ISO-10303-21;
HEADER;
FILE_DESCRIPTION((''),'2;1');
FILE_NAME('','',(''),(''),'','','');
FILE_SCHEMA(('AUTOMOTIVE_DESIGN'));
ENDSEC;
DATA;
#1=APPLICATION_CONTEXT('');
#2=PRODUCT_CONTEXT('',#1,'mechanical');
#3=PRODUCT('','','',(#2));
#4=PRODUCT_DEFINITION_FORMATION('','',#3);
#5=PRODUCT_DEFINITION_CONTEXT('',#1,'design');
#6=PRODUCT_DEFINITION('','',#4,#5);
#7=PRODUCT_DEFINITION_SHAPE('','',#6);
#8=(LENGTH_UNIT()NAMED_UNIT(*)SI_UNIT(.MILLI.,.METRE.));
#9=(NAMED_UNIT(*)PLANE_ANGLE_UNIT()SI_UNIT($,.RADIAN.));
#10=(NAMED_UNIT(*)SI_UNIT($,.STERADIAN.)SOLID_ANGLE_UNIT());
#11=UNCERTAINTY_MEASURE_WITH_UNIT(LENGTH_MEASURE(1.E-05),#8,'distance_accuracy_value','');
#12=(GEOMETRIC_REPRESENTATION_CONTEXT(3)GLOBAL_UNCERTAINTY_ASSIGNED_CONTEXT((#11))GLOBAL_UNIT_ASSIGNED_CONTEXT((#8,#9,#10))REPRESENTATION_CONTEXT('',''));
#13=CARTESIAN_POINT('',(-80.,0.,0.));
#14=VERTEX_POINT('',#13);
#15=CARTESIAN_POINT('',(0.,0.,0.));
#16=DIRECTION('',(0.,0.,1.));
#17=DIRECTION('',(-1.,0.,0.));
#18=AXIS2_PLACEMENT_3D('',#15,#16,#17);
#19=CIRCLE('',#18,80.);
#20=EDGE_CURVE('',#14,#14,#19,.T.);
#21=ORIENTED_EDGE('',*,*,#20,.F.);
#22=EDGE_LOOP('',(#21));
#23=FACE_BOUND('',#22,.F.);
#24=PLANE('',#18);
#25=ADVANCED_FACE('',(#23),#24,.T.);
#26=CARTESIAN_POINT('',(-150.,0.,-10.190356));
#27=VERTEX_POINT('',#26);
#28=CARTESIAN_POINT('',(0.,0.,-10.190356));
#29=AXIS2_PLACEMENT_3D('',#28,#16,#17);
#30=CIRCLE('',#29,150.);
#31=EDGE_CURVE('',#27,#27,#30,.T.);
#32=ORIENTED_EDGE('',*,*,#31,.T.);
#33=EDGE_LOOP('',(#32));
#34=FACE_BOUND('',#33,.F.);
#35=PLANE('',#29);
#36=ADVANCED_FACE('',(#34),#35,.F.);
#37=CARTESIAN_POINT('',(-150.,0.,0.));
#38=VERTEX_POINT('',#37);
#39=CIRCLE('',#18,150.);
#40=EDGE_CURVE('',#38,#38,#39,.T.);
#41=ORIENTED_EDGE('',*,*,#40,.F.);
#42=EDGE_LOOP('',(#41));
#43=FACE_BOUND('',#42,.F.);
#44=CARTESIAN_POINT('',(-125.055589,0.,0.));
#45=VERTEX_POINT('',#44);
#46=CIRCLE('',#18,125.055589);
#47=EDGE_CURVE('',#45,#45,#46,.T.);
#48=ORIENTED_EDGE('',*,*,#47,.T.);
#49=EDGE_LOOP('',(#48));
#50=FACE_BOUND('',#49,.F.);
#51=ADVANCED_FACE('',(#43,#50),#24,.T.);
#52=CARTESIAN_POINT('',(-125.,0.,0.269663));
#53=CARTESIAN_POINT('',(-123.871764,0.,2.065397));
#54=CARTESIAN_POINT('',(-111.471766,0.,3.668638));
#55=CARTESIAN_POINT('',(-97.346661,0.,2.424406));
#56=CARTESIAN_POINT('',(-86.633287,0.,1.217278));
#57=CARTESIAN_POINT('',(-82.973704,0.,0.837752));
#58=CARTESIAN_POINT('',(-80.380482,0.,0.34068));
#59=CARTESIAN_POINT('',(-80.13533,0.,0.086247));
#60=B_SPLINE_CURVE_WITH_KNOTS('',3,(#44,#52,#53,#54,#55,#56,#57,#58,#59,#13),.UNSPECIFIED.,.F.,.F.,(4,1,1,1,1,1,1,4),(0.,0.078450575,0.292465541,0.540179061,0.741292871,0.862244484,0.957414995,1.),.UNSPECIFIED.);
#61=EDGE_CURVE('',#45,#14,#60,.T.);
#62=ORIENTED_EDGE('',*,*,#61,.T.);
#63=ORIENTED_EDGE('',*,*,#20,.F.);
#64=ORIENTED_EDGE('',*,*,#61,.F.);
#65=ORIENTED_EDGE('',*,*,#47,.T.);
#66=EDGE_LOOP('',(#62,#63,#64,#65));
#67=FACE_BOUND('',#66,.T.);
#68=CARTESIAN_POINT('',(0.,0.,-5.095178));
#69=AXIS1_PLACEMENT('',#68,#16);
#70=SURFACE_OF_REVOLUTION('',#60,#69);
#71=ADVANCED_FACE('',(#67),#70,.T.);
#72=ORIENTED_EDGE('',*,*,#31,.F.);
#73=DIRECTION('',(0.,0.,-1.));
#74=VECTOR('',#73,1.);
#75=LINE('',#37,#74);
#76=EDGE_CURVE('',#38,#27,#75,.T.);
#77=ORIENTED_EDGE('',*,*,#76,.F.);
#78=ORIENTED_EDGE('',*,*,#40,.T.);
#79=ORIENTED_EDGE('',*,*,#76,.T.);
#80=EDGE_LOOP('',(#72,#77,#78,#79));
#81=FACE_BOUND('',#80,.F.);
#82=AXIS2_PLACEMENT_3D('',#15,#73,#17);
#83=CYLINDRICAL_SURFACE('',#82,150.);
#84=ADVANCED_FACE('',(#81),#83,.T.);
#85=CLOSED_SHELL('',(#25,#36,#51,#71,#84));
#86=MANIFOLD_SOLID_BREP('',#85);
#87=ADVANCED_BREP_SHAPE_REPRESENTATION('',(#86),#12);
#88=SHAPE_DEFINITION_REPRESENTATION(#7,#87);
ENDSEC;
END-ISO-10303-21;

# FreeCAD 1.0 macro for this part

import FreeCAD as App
import Part
import Sketcher

V = App.Vector
Q = App.Units.Quantity

doc = App.newDocument("Part")
params = doc.addObject("Spreadsheet::Sheet", "Params")
for row, (alias, value) in enumerate([
    ("sketch1_width", "150 mm"),
    ("revolution_angle", "360 deg"),
], start=1):
    params.set(f"A{row}", alias)
    params.set(f"B{row}", "=" + value)
    params.setAlias(f"B{row}", alias)

body = doc.addObject("PartDesign::Body", "Body")

# Sketch on XZ plane
sketch1 = doc.addObject("Sketcher::SketchObject", "Sketch")
body.addObject(sketch1)
sketch1.AttachmentSupport = (doc.XZ_Plane, [""])
sketch1.MapMode = "FlatFace"
sketch1.addGeometry(Part.LineSegment(V(0, -10.190356, 0), V(0, 0, 0)), False)
sketch1.addGeometry(Part.LineSegment(V(0, 0, 0), V(-80, 0, 0)), False)
sketch1.addGeometry(Part.BSplineCurve([V(-125.055589, 0, 0), V(-125, 0.269663, 0), V(-123.871764, 2.065397, 0), V(-111.471766, 3.668638, 0), V(-97.346661, 2.424406, 0), V(-86.633287, 1.217278, 0), V(-82.973704, 0.837752, 0), V(-80.380482, 0.34068, 0), V(-80.13533, 0.086247, 0), V(-80, 0, 0)], [4, 1, 1, 1, 1, 1, 1, 4], [0, 0.078450575, 0.292465541, 0.540179061, 0.741292871, 0.862244484, 0.957414995, 1], False, 3, [1, 1, 1, 1, 1, 1, 1, 1, 1, 1], False), False)
sketch1.addGeometry(Part.LineSegment(V(-125.055589, 0, 0), V(-150, 0, 0)), False)
sketch1.addGeometry(Part.LineSegment(V(-150, 0, 0), V(-150, -10.190356, 0)), False)
sketch1.addGeometry(Part.LineSegment(V(-150, -10.190356, 0), V(0, -10.190356, 0)), False)
sketch1.addConstraint(Sketcher.Constraint("Block", 2))
sketch1.addConstraint(Sketcher.Constraint("Coincident", 0, 2, 1, 1))
sketch1.addConstraint(Sketcher.Constraint("Coincident", 1, 2, 2, 2))
sketch1.addConstraint(Sketcher.Constraint("Coincident", 2, 1, 3, 1))
sketch1.addConstraint(Sketcher.Constraint("Coincident", 3, 2, 4, 1))
sketch1.addConstraint(Sketcher.Constraint("Coincident", 4, 2, 5, 1))
sketch1.addConstraint(Sketcher.Constraint("Coincident", 5, 2, 0, 1))
sketch1.addConstraint(Sketcher.Constraint("Vertical", 0))
sketch1.addConstraint(Sketcher.Constraint("Horizontal", 1))
sketch1.addConstraint(Sketcher.Constraint("Horizontal", 3))
sketch1.addConstraint(Sketcher.Constraint("Vertical", 4))
sketch1.addConstraint(Sketcher.Constraint("Horizontal", 5))
sketch1.addConstraint(Sketcher.Constraint("PointOnObject", 5, 2, -2))
sketch1.addConstraint(Sketcher.Constraint("DistanceX", 5, 1, 5, 2, Q("150 mm")))
sketch1.addConstraint(Sketcher.Constraint("DistanceY", 0, 1, 0, 2, Q("10.190356 mm")))
sketch1.setExpression("Constraints[13]", "Params.sketch1_width")
revolution = doc.addObject("PartDesign::Revolution", "Revolution")
body.addObject(revolution)
revolution.Profile = sketch1
revolution.ReferenceAxis = (sketch1, ["V_Axis"])
revolution.setExpression("Angle", "Params.revolution_angle")

doc.recompute()
